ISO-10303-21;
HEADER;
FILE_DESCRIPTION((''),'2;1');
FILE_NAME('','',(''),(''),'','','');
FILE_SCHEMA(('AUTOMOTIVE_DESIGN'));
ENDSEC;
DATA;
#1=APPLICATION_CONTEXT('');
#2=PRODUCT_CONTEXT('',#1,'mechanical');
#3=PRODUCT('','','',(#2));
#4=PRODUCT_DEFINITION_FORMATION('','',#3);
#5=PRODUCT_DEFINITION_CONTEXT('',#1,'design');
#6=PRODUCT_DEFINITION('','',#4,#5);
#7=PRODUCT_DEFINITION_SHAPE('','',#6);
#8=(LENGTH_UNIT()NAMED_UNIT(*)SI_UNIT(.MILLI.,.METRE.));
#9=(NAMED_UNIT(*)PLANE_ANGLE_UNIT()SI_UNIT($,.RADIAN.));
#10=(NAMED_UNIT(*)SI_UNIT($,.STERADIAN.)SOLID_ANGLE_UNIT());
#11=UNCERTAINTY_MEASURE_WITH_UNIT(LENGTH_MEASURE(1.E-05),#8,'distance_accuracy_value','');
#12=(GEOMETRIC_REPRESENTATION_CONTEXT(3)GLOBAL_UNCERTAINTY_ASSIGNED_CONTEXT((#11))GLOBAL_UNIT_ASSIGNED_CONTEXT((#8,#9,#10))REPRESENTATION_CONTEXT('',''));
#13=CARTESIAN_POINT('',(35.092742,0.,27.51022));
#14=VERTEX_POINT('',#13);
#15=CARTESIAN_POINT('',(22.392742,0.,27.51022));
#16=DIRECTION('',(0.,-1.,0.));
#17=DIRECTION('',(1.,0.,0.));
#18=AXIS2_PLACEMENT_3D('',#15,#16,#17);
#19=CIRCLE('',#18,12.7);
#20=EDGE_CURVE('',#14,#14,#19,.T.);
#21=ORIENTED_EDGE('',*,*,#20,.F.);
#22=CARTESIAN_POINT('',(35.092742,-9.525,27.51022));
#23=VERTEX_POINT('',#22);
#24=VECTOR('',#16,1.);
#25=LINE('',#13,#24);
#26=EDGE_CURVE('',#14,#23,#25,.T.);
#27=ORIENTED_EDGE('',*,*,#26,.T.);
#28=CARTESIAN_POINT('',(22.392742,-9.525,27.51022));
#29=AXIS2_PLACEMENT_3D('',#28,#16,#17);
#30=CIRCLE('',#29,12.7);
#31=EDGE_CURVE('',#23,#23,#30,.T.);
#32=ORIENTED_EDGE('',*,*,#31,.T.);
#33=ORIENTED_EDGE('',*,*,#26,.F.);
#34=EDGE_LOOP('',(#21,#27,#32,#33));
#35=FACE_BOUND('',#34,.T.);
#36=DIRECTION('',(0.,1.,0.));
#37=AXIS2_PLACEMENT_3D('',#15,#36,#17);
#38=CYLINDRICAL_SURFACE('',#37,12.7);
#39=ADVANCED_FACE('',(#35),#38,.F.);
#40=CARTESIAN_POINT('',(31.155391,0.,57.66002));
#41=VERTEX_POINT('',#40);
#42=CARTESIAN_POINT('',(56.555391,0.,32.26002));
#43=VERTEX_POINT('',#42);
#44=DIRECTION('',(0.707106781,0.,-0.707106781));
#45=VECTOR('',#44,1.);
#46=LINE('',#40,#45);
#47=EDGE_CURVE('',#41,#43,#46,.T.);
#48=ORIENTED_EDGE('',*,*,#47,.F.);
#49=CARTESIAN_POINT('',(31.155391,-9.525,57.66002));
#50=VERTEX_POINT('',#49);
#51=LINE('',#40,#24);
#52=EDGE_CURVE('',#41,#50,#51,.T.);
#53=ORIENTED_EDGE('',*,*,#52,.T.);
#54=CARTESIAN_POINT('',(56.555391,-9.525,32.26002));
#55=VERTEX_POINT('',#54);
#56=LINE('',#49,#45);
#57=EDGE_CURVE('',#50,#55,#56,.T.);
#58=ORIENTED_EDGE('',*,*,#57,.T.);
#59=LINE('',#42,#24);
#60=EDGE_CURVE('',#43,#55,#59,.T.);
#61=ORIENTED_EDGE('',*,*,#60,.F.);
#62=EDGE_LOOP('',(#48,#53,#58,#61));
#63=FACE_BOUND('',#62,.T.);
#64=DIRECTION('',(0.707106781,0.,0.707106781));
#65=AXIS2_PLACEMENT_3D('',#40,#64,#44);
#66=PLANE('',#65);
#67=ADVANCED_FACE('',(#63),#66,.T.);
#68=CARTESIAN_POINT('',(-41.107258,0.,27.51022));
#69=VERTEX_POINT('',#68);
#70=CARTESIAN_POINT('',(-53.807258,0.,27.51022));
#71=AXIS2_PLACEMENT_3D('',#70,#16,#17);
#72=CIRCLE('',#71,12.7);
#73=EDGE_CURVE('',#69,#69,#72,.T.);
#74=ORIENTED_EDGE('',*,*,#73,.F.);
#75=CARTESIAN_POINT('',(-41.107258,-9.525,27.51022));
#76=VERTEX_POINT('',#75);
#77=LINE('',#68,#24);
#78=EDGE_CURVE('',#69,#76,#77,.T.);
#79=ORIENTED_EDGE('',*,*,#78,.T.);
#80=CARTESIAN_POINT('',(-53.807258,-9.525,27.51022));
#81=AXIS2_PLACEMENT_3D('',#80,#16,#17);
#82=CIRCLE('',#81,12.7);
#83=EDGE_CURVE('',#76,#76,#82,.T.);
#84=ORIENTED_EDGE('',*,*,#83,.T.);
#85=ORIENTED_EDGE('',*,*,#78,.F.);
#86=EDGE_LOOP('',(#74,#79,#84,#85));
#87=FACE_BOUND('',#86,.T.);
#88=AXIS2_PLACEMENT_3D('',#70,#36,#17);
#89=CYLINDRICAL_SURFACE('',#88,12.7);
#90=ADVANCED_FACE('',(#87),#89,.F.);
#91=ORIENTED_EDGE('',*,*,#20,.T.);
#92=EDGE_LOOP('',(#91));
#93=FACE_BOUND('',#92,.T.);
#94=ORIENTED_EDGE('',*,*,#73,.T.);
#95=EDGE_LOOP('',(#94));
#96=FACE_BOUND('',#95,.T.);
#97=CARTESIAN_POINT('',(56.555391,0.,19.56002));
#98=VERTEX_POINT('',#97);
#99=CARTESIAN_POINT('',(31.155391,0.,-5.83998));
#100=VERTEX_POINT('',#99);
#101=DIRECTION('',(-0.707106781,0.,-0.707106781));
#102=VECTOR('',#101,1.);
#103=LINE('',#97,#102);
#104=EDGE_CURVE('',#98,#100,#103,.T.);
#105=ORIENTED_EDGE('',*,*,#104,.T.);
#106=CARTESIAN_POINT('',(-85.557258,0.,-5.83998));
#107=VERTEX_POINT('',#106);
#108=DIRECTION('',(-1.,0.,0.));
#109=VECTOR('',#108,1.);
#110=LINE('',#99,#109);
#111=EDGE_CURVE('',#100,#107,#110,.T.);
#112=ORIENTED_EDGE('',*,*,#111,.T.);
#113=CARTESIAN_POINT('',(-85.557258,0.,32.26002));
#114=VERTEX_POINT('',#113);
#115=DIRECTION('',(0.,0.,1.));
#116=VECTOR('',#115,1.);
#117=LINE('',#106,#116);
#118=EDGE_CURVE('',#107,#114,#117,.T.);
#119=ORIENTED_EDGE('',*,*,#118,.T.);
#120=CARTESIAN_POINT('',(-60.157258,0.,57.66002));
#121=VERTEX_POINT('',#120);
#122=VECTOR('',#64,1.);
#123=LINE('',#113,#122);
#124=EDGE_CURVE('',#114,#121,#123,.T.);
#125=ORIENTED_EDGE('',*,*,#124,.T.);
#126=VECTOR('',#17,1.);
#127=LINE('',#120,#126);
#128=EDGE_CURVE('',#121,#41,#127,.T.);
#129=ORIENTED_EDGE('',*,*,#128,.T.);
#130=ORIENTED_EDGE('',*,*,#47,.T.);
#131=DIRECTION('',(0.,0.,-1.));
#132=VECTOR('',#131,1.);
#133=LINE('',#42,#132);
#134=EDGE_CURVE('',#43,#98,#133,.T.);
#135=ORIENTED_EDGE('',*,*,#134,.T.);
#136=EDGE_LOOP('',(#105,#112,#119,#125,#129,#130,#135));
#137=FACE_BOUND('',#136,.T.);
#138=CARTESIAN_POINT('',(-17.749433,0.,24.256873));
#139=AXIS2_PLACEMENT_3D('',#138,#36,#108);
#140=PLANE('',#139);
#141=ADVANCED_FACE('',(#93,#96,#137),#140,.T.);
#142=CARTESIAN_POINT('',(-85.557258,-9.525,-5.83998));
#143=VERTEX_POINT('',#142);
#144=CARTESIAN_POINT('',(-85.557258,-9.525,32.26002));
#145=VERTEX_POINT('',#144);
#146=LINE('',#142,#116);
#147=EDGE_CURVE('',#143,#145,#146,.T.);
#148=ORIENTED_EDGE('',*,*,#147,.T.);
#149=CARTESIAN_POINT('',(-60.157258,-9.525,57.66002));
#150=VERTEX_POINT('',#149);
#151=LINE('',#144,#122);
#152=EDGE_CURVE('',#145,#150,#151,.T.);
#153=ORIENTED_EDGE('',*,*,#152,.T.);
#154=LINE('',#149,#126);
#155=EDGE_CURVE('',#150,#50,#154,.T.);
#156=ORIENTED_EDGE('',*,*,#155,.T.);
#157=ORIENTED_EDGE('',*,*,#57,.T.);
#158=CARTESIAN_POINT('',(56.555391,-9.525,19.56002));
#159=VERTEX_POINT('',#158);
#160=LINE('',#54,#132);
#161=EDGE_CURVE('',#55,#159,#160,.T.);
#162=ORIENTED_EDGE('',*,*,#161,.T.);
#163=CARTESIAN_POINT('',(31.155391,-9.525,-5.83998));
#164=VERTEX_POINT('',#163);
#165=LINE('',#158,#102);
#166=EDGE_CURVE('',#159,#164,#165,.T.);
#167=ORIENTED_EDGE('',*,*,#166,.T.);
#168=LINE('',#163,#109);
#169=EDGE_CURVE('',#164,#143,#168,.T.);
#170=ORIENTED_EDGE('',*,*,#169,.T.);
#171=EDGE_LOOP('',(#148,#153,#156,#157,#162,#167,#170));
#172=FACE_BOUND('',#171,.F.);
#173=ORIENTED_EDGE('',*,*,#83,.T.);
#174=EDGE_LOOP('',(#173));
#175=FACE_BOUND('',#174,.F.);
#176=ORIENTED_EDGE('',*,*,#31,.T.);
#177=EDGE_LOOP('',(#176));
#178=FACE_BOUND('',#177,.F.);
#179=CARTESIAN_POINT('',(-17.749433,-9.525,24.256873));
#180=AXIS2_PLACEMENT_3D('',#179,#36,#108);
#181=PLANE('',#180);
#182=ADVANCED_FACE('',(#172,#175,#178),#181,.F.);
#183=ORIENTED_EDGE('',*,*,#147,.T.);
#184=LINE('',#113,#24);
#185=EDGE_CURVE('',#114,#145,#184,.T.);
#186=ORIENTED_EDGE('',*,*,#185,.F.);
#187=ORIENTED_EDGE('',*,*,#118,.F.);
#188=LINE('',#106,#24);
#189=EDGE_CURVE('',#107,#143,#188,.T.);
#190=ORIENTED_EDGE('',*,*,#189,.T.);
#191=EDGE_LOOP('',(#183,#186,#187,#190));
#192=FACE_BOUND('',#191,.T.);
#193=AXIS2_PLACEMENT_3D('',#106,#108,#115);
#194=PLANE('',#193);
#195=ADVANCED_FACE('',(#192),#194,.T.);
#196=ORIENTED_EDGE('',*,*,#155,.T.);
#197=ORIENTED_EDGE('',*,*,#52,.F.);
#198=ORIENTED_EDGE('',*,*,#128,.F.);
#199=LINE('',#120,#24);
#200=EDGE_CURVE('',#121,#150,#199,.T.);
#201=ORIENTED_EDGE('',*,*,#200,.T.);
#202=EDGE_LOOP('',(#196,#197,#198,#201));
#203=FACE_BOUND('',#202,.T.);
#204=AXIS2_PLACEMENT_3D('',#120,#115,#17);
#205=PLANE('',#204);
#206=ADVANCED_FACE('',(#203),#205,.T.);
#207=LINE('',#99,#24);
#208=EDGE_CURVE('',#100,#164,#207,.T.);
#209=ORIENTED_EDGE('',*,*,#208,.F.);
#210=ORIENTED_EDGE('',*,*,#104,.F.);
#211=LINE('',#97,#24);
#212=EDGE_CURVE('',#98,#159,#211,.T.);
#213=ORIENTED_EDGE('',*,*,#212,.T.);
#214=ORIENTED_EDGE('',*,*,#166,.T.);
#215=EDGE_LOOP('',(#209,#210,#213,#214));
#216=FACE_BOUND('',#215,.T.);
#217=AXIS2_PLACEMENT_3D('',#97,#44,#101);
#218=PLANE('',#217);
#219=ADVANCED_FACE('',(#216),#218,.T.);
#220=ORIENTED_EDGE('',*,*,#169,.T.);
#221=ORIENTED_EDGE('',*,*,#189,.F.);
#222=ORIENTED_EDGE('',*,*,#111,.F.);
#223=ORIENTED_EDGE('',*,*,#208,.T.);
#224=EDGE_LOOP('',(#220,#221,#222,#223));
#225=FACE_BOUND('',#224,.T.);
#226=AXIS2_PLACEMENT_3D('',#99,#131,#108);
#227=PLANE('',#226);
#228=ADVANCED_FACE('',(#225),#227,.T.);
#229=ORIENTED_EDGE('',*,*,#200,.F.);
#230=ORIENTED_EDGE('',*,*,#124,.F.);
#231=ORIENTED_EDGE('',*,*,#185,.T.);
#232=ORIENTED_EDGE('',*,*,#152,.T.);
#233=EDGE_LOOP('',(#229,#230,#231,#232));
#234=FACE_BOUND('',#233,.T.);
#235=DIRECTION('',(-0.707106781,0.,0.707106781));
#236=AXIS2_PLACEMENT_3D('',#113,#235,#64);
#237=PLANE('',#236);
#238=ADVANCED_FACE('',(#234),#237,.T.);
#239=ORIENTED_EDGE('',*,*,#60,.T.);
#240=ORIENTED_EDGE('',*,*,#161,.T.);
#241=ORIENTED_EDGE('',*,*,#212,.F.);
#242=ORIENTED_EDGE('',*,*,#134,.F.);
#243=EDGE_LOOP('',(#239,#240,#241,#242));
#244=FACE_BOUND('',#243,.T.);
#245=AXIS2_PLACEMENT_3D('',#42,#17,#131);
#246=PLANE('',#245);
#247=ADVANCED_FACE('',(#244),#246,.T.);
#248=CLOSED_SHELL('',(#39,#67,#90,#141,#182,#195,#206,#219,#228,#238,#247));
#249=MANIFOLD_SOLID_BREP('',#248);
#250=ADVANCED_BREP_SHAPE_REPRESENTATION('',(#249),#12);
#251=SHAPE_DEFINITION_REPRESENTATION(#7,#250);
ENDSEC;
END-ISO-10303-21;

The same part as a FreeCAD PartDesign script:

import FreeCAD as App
import Part
import Sketcher
Q = App.Units.Quantity


def add_polygon(sketch, points):
    """Adds a closed chain of lines whose ends are joined by coincident constraints."""
    first, n = sketch.GeometryCount, len(points)
    for a, b in zip(points, points[1:] + points[:1]):
        sketch.addGeometry(Part.LineSegment(App.Vector(*a, 0), App.Vector(*b, 0)), False)
    for i in range(n):
        sketch.addConstraint(Sketcher.Constraint("Coincident", first + i, 2, first + (i + 1) % n, 1))

doc = App.newDocument("Part")
body = doc.addObject("PartDesign::Body", "Body")

sketch1 = body.newObject("Sketcher::SketchObject", "Sketch")
sketch1.AttachmentSupport = (doc.getObject("XZ_Plane"), [""])
sketch1.MapMode = "FlatFace"
add_polygon(sketch1, [(31, 58), (-60, 58), (-86, 32), (-86, -6), (31, -6), (57, 20), (57, 32)])
sketch1.addGeometry(Part.Circle(App.Vector(22, 28, 0), App.Vector(0, 0, 1), 13), False)
sketch1.addGeometry(Part.Circle(App.Vector(-54, 28, 0), App.Vector(0, 0, 1), 13), False)
sketch1.addConstraint([
    Sketcher.Constraint("Horizontal", 0),
    Sketcher.Constraint("Vertical", 2),
    Sketcher.Constraint("Horizontal", 3),
    Sketcher.Constraint("Vertical", 5),
    Sketcher.Constraint("Equal", 7, 8),
    Sketcher.Constraint("Parallel", 1, 4),
    Sketcher.Constraint("Perpendicular", 4, 6),
    Sketcher.Constraint("Horizontal", 7, 3, 8, 3),
    Sketcher.Constraint("Horizontal", 1, 2, 5, 2),
    Sketcher.Constraint("Vertical", 3, 2, 6, 2),
    Sketcher.Constraint("Equal", 1, 4),
    Sketcher.Constraint("Diameter", 7, Q("1 in")),
    Sketcher.Constraint("DistanceY", 2, 2, 2, 1, Q("1.5 in")),
    Sketcher.Constraint("DistanceY", 5, 1, 5, 2, Q("0.5 in")),
    Sketcher.Constraint("DistanceX", 8, 3, 7, 3, Q("3 in")),
    Sketcher.Constraint("DistanceX", 0, 2, 8, 3, Q("0.25 in")),
    Sketcher.Constraint("DistanceY", 8, 3, 0, 2, Q("1.187 in")),
    Sketcher.Constraint("DistanceX", 0, 2, 0, 1, 91.312649),
    Sketcher.Constraint("DistanceX", -1, 1, 7, 3, 22.392742),
    Sketcher.Constraint("DistanceY", -1, 1, 7, 3, 27.51022),
])
pad1 = body.newObject("PartDesign::Pad", "Pad")
pad1.Profile = sketch1
pad1.Length = Q("0.375 in")

doc.recompute()
